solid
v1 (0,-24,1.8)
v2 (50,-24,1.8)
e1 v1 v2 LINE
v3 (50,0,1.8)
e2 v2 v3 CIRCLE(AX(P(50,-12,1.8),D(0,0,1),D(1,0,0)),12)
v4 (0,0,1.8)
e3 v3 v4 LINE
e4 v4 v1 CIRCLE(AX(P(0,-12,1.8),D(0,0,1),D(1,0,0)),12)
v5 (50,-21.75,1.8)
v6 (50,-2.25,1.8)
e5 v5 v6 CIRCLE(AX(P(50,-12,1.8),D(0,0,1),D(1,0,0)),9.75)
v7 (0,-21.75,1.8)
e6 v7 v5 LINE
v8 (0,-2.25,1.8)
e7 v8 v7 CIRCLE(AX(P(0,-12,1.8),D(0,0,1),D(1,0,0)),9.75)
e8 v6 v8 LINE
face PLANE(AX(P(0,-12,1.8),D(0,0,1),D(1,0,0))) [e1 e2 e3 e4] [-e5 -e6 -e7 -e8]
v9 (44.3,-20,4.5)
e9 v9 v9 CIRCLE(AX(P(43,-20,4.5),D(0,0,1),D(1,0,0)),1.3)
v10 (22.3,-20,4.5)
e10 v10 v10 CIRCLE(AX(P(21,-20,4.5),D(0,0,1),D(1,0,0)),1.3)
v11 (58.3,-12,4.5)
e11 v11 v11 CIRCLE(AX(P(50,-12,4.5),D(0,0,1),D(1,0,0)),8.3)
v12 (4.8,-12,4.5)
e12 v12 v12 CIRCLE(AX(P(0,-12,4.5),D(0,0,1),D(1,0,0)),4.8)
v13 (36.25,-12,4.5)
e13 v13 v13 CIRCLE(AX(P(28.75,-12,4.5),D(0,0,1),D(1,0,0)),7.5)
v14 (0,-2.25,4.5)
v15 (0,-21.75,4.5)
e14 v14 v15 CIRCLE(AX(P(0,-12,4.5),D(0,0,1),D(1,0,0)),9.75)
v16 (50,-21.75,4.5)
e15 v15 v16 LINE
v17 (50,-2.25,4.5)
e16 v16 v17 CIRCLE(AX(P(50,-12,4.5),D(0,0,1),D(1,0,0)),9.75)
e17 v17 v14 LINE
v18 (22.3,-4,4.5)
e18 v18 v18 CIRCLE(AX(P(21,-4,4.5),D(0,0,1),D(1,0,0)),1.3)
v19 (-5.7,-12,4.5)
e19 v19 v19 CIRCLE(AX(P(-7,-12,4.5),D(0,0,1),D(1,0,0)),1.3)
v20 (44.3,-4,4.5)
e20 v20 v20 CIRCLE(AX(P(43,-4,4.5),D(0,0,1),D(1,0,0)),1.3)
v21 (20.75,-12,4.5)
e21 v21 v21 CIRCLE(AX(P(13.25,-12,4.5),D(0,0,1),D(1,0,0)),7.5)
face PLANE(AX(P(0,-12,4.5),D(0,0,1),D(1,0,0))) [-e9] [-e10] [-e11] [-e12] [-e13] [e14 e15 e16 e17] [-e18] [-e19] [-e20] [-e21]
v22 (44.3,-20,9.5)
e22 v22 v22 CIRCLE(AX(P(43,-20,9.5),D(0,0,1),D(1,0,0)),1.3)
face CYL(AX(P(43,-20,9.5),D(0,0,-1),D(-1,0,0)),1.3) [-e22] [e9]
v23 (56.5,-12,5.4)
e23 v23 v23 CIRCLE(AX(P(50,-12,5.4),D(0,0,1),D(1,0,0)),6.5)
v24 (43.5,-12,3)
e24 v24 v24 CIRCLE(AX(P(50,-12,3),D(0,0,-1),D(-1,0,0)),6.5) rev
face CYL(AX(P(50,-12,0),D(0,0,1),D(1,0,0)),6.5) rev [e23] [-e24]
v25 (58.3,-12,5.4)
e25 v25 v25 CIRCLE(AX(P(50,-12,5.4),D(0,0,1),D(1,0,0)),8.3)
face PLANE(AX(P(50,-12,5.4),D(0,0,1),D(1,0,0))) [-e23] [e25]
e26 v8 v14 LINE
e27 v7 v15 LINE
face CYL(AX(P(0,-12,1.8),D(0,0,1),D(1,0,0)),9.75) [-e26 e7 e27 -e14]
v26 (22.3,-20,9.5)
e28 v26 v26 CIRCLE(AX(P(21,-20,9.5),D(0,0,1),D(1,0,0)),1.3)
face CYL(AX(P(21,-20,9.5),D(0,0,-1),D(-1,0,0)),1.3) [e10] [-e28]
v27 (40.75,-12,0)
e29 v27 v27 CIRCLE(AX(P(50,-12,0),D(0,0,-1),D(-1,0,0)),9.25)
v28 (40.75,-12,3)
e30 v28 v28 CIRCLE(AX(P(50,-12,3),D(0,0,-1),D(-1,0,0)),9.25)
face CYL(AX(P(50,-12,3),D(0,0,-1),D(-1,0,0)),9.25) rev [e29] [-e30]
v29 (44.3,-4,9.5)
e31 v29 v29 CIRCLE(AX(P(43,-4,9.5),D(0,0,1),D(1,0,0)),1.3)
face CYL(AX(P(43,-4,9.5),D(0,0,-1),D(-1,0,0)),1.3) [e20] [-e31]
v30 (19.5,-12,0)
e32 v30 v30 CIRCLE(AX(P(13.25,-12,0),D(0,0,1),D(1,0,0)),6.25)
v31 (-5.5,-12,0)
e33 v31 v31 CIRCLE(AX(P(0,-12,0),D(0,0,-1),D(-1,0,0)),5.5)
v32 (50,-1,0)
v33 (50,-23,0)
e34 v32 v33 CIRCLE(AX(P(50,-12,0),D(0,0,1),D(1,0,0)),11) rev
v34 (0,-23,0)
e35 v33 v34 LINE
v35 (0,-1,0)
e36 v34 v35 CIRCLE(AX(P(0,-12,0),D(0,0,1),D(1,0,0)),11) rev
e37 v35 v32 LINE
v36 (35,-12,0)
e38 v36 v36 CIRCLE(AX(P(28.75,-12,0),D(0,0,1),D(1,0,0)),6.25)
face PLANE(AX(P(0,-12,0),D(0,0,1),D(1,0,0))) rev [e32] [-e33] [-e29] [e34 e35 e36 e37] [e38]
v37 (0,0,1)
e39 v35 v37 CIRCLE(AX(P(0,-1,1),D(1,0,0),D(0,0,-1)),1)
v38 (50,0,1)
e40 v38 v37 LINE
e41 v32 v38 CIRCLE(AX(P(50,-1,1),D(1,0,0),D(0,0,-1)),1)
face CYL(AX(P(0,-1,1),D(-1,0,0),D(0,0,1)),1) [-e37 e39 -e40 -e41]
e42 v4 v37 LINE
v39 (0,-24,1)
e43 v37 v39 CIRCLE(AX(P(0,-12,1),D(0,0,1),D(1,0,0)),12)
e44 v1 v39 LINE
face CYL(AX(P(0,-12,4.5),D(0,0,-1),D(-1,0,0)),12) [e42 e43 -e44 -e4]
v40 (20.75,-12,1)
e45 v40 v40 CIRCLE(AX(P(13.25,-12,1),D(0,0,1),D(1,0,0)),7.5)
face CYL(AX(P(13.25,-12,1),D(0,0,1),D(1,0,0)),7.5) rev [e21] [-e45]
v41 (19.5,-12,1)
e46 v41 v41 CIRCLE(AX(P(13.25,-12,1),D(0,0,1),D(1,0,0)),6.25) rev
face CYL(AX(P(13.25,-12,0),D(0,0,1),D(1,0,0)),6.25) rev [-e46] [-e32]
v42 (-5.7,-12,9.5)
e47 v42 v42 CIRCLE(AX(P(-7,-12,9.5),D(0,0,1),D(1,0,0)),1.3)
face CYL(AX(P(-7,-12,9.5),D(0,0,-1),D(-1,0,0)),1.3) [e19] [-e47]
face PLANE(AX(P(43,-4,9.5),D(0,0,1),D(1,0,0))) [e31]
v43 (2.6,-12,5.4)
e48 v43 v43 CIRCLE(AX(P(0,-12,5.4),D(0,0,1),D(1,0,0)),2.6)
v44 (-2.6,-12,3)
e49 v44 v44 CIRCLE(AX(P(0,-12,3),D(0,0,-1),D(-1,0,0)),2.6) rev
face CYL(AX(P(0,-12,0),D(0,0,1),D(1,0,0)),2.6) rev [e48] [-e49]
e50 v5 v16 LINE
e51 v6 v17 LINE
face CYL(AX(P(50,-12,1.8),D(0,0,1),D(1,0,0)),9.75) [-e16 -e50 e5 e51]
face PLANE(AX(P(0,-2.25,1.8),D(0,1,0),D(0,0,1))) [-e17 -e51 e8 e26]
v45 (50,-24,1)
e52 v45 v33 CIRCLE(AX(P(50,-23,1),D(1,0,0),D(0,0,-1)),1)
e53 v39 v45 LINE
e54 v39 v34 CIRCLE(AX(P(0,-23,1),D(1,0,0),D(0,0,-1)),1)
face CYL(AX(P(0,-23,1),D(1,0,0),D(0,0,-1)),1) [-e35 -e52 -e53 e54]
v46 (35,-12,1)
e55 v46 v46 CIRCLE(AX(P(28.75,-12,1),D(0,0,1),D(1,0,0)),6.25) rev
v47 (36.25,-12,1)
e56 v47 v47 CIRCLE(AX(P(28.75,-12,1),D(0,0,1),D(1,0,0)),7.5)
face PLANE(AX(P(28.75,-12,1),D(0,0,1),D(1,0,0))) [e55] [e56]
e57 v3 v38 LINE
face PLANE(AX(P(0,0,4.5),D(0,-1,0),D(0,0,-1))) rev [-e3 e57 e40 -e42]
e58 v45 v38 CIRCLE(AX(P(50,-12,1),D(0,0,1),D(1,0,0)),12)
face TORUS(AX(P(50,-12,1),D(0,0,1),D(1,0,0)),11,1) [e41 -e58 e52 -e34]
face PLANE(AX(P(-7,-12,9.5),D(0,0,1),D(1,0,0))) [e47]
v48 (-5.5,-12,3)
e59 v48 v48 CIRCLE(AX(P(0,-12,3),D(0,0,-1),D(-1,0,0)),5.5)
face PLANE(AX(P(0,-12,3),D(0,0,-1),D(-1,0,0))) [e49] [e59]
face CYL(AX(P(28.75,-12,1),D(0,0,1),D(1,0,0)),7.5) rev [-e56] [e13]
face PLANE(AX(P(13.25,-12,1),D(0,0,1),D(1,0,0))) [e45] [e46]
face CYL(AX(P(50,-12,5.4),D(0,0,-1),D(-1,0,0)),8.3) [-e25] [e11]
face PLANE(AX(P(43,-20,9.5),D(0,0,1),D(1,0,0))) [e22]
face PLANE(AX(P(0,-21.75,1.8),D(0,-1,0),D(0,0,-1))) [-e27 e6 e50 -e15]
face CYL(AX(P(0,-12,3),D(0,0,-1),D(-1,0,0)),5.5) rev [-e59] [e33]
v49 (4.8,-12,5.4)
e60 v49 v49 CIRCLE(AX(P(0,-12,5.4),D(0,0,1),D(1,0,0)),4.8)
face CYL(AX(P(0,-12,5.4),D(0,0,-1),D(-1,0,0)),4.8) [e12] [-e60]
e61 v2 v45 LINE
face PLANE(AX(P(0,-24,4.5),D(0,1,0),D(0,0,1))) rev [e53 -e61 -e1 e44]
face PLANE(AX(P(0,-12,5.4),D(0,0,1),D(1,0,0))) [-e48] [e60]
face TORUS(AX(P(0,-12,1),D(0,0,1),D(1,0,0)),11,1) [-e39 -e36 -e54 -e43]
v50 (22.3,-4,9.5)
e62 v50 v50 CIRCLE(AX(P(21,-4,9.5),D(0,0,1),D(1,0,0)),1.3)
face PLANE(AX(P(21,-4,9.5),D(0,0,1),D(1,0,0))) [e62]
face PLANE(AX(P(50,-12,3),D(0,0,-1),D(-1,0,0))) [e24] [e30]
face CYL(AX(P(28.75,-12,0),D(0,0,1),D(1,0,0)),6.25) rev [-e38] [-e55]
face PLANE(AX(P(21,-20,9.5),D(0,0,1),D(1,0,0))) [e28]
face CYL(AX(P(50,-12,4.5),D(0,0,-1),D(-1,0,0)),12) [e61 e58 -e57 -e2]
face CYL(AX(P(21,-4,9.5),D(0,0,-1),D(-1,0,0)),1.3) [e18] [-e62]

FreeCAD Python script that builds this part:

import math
import FreeCAD as App
import Part
import Sketcher

V = App.Vector


def edges_at(feature, points):
    """Names of the edges that pass closest to the given points."""
    edges = feature.Shape.Edges
    near = lambda p: min(range(len(edges)), key=lambda i: edges[i].distToShape(Part.Vertex(*p))[0])
    return sorted({f"Edge{near(p) + 1}" for p in points})

doc = App.newDocument("Part")
body = doc.addObject("PartDesign::Body", "Body")

sketch1 = body.newObject("Sketcher::SketchObject", "Sketch")
sketch1.AttachmentSupport = (doc.getObject("XY_Plane"), [""])
sketch1.MapMode = "FlatFace"
sketch1.addGeometry([
    Part.LineSegment(V(50, 0, 0), V(0, 0, 0)),
    Part.ArcOfCircle(Part.Circle(V(0, -12, 0), V(0, 0, 1), 12), math.radians(90), math.radians(270)),
    Part.LineSegment(V(0, -24, 0), V(50, -24, 0)),
    Part.ArcOfCircle(Part.Circle(V(50, -12, 0), V(0, 0, 1), 12), math.radians(-90), math.radians(90)),
], False)
sketch1.addConstraint([
    Sketcher.Constraint("Tangent", 0, 2, 1, 1),
    Sketcher.Constraint("Tangent", 1, 2, 2, 1),
    Sketcher.Constraint("Tangent", 2, 2, 3, 1),
    Sketcher.Constraint("Tangent", 3, 2, 0, 1),
    Sketcher.Constraint("Horizontal", 0),
    Sketcher.Constraint("Horizontal", 2),
    Sketcher.Constraint("Coincident", 0, 2, -1, 1),
    Sketcher.Constraint("Radius", 1, 12.0),
    Sketcher.Constraint("DistanceX", 0, 2, 0, 1, 50.0),
])
pad1 = body.newObject("PartDesign::Pad", "Pad")
pad1.Profile = sketch1
pad1.Length = 4.5

sketch2 = body.newObject("Sketcher::SketchObject", "Sketch001")
sketch2.AttachmentSupport = (doc.getObject("XY_Plane"), [""])
sketch2.MapMode = "FlatFace"
sketch2.AttachmentOffset = App.Placement(V(0, 0, 4.5), App.Rotation())
sketch2.addGeometry([
    Part.LineSegment(V(50, 0, 0), V(0, 0, 0)),
    Part.ArcOfCircle(Part.Circle(V(0, -12, 0), V(0, 0, 1), 12), math.radians(90), math.radians(270)),
    Part.LineSegment(V(0, -24, 0), V(50, -24, 0)),
    Part.ArcOfCircle(Part.Circle(V(50, -12, 0), V(0, 0, 1), 12), math.radians(-90), math.radians(90)),
    Part.LineSegment(V(0, -2, 0), V(50, -2, 0)),
    Part.ArcOfCircle(Part.Circle(V(50, -12, 0), V(0, 0, 1), 10), math.radians(-90), math.radians(90)),
    Part.LineSegment(V(50, -22, 0), V(0, -22, 0)),
    Part.ArcOfCircle(Part.Circle(V(0, -12, 0), V(0, 0, 1), 10), math.radians(90), math.radians(270)),
], False)
sketch2.addConstraint([
    Sketcher.Constraint("Tangent", 0, 2, 1, 1),
    Sketcher.Constraint("Tangent", 1, 2, 2, 1),
    Sketcher.Constraint("Tangent", 2, 2, 3, 1),
    Sketcher.Constraint("Tangent", 3, 2, 0, 1),
    Sketcher.Constraint("Tangent", 4, 2, 5, 2),
    Sketcher.Constraint("Tangent", 5, 1, 6, 1),
    Sketcher.Constraint("Tangent", 6, 2, 7, 2),
    Sketcher.Constraint("Tangent", 7, 1, 4, 1),
    Sketcher.Constraint("Horizontal", 0),
    Sketcher.Constraint("Horizontal", 2),
    Sketcher.Constraint("Horizontal", 4),
    Sketcher.Constraint("Horizontal", 6),
    Sketcher.Constraint("Coincident", 5, 3, 3, 3),
    Sketcher.Constraint("PointOnObject", 1, 3, -2),
    Sketcher.Constraint("PointOnObject", 7, 3, -2),
    Sketcher.Constraint("DistanceX", 0, 2, 0, 1, 50.0),
    Sketcher.Constraint("Radius", 5, 9.75),
    Sketcher.Constraint("DistanceY", 1, 3, -1, 1, 12.0),
    Sketcher.Constraint("Radius", 1, 12.012348),
])
pocket1 = body.newObject("PartDesign::Pocket", "Pocket")
pocket1.Profile = sketch2
pocket1.Length = 2.7

sketch3 = body.newObject("Sketcher::SketchObject", "Sketch002")
sketch3.AttachmentSupport = (doc.getObject("XY_Plane"), [""])
sketch3.MapMode = "FlatFace"
sketch3.AttachmentOffset = App.Placement(V(0, 0, 4.5), App.Rotation())
sketch3.addGeometry([
    Part.Circle(V(0, -12, 0), V(0, 0, 1), 2.6),
    Part.Circle(V(50, -12, 0), V(0, 0, 1), 6.5),
    Part.Circle(V(13.2, -12, 0), V(0, 0, 1), 6.2),
    Part.Circle(V(28.8, -12, 0), V(0, 0, 1), 6.2),
], False)
sketch3.addConstraint([
    Sketcher.Constraint("Equal", 2, 3),
    Sketcher.Constraint("PointOnObject", 0, 3, -2),
    Sketcher.Constraint("Horizontal", 0, 3, 1, 3),
    Sketcher.Constraint("Horizontal", 1, 3, 2, 3),
    Sketcher.Constraint("Horizontal", 2, 3, 3, 3),
    Sketcher.Constraint("Diameter", 1, 13.0),
    Sketcher.Constraint("Diameter", 0, 5.2),
    Sketcher.Constraint("Diameter", 2, 12.5),
    Sketcher.Constraint("DistanceY", 0, 3, -1, 1, 12.0),
    Sketcher.Constraint("DistanceX", -1, 1, 1, 3, 50.0),
    Sketcher.Constraint("DistanceX", 2, 3, 3, 3, 15.5),
    Sketcher.Constraint("DistanceX", -1, 1, 2, 3, 13.25),
])
pocket2 = body.newObject("PartDesign::Pocket", "Pocket001")
pocket2.Profile = sketch3
pocket2.Type = "ThroughAll"

sketch4 = body.newObject("Sketcher::SketchObject", "Sketch003")
sketch4.AttachmentSupport = (doc.getObject("XY_Plane"), [""])
sketch4.MapMode = "FlatFace"
sketch4.addGeometry([
    Part.Circle(V(0, -12, 0), V(0, 0, 1), 6),
    Part.Circle(V(50, -12, 0), V(0, 0, 1), 9),
], False)
sketch4.addConstraint([
    Sketcher.Constraint("PointOnObject", 0, 3, -2),
    Sketcher.Constraint("Horizontal", 0, 3, 1, 3),
    Sketcher.Constraint("Diameter", 0, 11.0),
    Sketcher.Constraint("Diameter", 1, 18.5),
    Sketcher.Constraint("DistanceY", 0, 3, -1, 1, 12.0),
    Sketcher.Constraint("DistanceX", -1, 1, 1, 3, 50.0),
])
pocket3 = body.newObject("PartDesign::Pocket", "Pocket002")
pocket3.Profile = sketch4
pocket3.Length = 3
pocket3.Reversed = True
doc.recompute()

fillet = body.newObject("PartDesign::Fillet", "Fillet")
fillet.Base = (pocket3, edges_at(pocket3, [
    (25, 0, 0),
    (62, -12, 0),
    (25, -24, 0),
    (-12, -12, 0),
]))
fillet.Radius = 1

sketch5 = body.newObject("Sketcher::SketchObject", "Sketch004")
sketch5.AttachmentSupport = (doc.getObject("XY_Plane"), [""])
sketch5.MapMode = "FlatFace"
sketch5.AttachmentOffset = App.Placement(V(0, 0, 4.5), App.Rotation())
sketch5.addGeometry([
    Part.Circle(V(29, -12, 0), V(0, 0, 1), 8),
    Part.Circle(V(13, -12, 0), V(0, 0, 1), 8),
], False)
sketch5.addConstraint([
    Sketcher.Constraint("Equal", 0, 1),
    Sketcher.Constraint("Horizontal", 0, 3, 1, 3),
    Sketcher.Constraint("Diameter", 0, 15.0),
    Sketcher.Constraint("DistanceY", 0, 3, -1, 1, 12.0),
    Sketcher.Constraint("DistanceX", 1, 3, 0, 3, 15.5),
    Sketcher.Constraint("DistanceX", -1, 1, 0, 3, 28.75),
])
pocket4 = body.newObject("PartDesign::Pocket", "Pocket003")
pocket4.Profile = sketch5
pocket4.Length = 3.5

sketch6 = body.newObject("Sketcher::SketchObject", "Sketch005")
sketch6.AttachmentSupport = (doc.getObject("XY_Plane"), [""])
sketch6.MapMode = "FlatFace"
sketch6.AttachmentOffset = App.Placement(V(0, 0, 4.5), App.Rotation())
sketch6.addGeometry([
    Part.Circle(V(21, -4, 0), V(0, 0, 1), 1.3),
    Part.Circle(V(21, -20, 0), V(0, 0, 1), 1.3),
    Part.Circle(V(-7, -12, 0), V(0, 0, 1), 1.3),
    Part.Circle(V(43, -4, 0), V(0, 0, 1), 1.3),
    Part.Circle(V(43, -20, 0), V(0, 0, 1), 1.3),
], False)
sketch6.addConstraint([
    Sketcher.Constraint("Equal", 0, 1),
    Sketcher.Constraint("Equal", 1, 2),
    Sketcher.Constraint("Equal", 2, 3),
    Sketcher.Constraint("Equal", 3, 4),
    Sketcher.Constraint("Horizontal", 0, 3, 3, 3),
    Sketcher.Constraint("Horizontal", 1, 3, 4, 3),
    Sketcher.Constraint("Vertical", 0, 3, 1, 3),
    Sketcher.Constraint("Vertical", 3, 3, 4, 3),
    Sketcher.Constraint("Diameter", 0, 2.6),
    Sketcher.Constraint("DistanceX", -1, 1, 0, 3, 21.0),
    Sketcher.Constraint("DistanceY", 0, 3, -1, 1, 4.0),
    Sketcher.Constraint("DistanceY", 1, 3, -1, 1, 20.0),
    Sketcher.Constraint("DistanceX", 2, 3, -1, 1, 7.0),
    Sketcher.Constraint("DistanceY", 2, 3, -1, 1, 12.0),
    Sketcher.Constraint("DistanceX", -1, 1, 3, 3, 43.0),
])
pad2 = body.newObject("PartDesign::Pad", "Pad001")
pad2.Profile = sketch6
pad2.Length = 5

sketch7 = body.newObject("Sketcher::SketchObject", "Sketch006")
sketch7.AttachmentSupport = (doc.getObject("XY_Plane"), [""])
sketch7.MapMode = "FlatFace"
sketch7.AttachmentOffset = App.Placement(V(0, 0, 5.4), App.Rotation())
sketch7.addGeometry([
    Part.Circle(V(0, -12, 0), V(0, 0, 1), 4.8),
    Part.Circle(V(0, -12, 0), V(0, 0, 1), 2.6),
    Part.Circle(V(50, -12, 0), V(0, 0, 1), 8.3),
    Part.Circle(V(50, -12, 0), V(0, 0, 1), 6.5),
], False)
sketch7.addConstraint([
    Sketcher.Constraint("Coincident", 1, 3, 0, 3),
    Sketcher.Constraint("Coincident", 3, 3, 2, 3),
    Sketcher.Constraint("PointOnObject", 0, 3, -2),
    Sketcher.Constraint("Horizontal", 1, 3, 2, 3),
    Sketcher.Constraint("Diameter", 3, 13.0),
    Sketcher.Constraint("Diameter", 0, 9.6),
    Sketcher.Constraint("Diameter", 1, 5.2),
    Sketcher.Constraint("Diameter", 2, 16.6),
    Sketcher.Constraint("DistanceY", 0, 3, -1, 1, 12.0),
    Sketcher.Constraint("DistanceX", -1, 1, 2, 3, 50.0),
])
pad3 = body.newObject("PartDesign::Pad", "Pad002")
pad3.Profile = sketch7
pad3.Length = 0.9
pad3.Reversed = True

doc.recompute()
